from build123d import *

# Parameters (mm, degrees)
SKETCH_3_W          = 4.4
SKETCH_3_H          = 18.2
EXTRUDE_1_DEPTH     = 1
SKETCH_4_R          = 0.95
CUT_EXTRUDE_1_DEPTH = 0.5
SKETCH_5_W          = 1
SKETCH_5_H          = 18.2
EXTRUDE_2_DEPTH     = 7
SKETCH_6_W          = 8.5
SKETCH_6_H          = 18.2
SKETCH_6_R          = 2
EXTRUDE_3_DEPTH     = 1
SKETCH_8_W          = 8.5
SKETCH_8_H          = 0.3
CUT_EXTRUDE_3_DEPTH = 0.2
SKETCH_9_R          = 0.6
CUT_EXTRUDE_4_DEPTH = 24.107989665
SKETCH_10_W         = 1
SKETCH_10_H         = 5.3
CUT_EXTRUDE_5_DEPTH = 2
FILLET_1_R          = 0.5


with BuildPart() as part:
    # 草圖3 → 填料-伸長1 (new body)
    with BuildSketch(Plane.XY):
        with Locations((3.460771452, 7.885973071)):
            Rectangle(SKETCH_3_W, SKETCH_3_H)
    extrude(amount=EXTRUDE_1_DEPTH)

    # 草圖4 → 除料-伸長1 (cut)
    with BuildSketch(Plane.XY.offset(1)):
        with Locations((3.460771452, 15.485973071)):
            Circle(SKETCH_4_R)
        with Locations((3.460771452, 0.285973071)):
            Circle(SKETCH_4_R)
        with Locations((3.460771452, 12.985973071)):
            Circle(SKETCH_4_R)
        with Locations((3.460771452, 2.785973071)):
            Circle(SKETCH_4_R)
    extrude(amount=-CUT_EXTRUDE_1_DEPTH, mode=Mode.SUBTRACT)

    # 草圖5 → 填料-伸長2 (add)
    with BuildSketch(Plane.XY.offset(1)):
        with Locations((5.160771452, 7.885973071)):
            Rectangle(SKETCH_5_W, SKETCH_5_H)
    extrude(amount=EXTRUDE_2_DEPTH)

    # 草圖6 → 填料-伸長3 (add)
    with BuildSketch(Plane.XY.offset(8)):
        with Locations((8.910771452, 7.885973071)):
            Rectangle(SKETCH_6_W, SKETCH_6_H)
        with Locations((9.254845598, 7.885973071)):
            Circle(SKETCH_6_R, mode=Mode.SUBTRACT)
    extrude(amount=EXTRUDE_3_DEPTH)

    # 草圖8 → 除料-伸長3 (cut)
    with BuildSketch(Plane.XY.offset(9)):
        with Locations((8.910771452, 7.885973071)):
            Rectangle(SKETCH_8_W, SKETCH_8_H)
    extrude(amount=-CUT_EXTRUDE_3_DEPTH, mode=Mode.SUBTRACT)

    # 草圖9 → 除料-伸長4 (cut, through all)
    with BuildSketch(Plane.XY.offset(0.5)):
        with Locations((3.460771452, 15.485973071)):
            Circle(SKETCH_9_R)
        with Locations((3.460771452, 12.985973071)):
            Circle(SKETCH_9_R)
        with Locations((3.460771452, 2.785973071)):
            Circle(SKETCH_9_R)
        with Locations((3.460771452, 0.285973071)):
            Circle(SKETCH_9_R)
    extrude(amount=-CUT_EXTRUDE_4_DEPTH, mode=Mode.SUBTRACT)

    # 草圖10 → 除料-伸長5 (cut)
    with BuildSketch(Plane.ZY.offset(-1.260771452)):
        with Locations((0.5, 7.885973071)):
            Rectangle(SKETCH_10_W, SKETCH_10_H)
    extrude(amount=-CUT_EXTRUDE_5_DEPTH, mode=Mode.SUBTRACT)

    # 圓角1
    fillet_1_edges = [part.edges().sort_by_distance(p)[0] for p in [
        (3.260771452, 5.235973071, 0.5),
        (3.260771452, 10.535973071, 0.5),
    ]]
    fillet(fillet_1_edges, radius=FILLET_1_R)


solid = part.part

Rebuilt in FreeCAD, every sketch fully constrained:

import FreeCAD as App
import Part
import Sketcher
from FreeCAD import Vector
Q = App.Units.Quantity


def edges_at(feature, points):
    """Names of the edges that pass closest to the given points."""
    edges = feature.Shape.Edges
    near = lambda p: min(range(len(edges)), key=lambda i: edges[i].distToShape(Part.Vertex(*p))[0])
    return sorted({f"Edge{near(p) + 1}" for p in points})


def add_polygon(sketch, points):
    """Adds a closed chain of lines whose ends are joined by coincident constraints."""
    first, n = sketch.GeometryCount, len(points)
    for a, b in zip(points, points[1:] + points[:1]):
        sketch.addGeometry(Part.LineSegment(App.Vector(*a, 0), App.Vector(*b, 0)), False)
    for i in range(n):
        sketch.addConstraint(Sketcher.Constraint("Coincident", first + i, 2, first + (i + 1) % n, 1))

doc = App.newDocument("Part")
body = doc.addObject("PartDesign::Body", "Body")

sketch1 = body.newObject("Sketcher::SketchObject", "Sketch")
sketch1.AttachmentSupport = (doc.getObject("XY_Plane"), [""])
sketch1.MapMode = "FlatFace"
add_polygon(sketch1, [(1.3, 17), (1.3, -1.2), (5.7, -1.2), (5.7, 17)])
sketch1.addConstraint([
    Sketcher.Constraint("Vertical", 0),
    Sketcher.Constraint("Horizontal", 1),
    Sketcher.Constraint("Vertical", 2),
    Sketcher.Constraint("Horizontal", 3),
    Sketcher.Constraint("DistanceX", 1, 1, 1, 2, Q("4.4 mm")),
    Sketcher.Constraint("DistanceY", 0, 2, 0, 1, Q("18.2 mm")),
    Sketcher.Constraint("DistanceX", -1, 1, 0, 2, Q("1.260771 mm")),
    Sketcher.Constraint("DistanceY", 0, 2, -1, 1, Q("1.214027 mm")),
])
pad1 = body.newObject("PartDesign::Pad", "Pad")
pad1.Profile = sketch1
pad1.Length = 1

sketch2 = body.newObject("Sketcher::SketchObject", "Sketch001")
sketch2.AttachmentSupport = (doc.getObject("XY_Plane"), [""])
sketch2.MapMode = "FlatFace"
sketch2.AttachmentOffset = App.Placement(Vector(0, 0, 1), App.Rotation())
sketch2.addGeometry([
    Part.Circle(Vector(3.5, 15.5, 0), Vector(0, 0, 1), 0.9),
    Part.Circle(Vector(3.5, 0.3, 0), Vector(0, 0, 1), 0.9),
    Part.Circle(Vector(3.5, 13, 0), Vector(0, 0, 1), 0.9),
    Part.Circle(Vector(3.5, 2.8, 0), Vector(0, 0, 1), 0.9),
], False)
sketch2.addConstraint([
    Sketcher.Constraint("Equal", 0, 1),
    Sketcher.Constraint("Equal", 1, 2),
    Sketcher.Constraint("Equal", 2, 3),
    Sketcher.Constraint("Vertical", 0, 3, 1, 3),
    Sketcher.Constraint("Vertical", 1, 3, 2, 3),
    Sketcher.Constraint("Vertical", 2, 3, 3, 3),
    Sketcher.Constraint("Diameter", 0, Q("1.9 mm")),
    Sketcher.Constraint("DistanceY", 1, 3, 0, 3, Q("15.2 mm")),
    Sketcher.Constraint("DistanceY", 2, 3, 0, 3, Q("2.5 mm")),
    Sketcher.Constraint("DistanceY", 1, 3, 3, 3, Q("2.5 mm")),
    Sketcher.Constraint("DistanceX", -1, 1, 0, 3, Q("3.460771 mm")),
    Sketcher.Constraint("DistanceY", -1, 1, 0, 3, Q("15.485973 mm")),
])
pocket1 = body.newObject("PartDesign::Pocket", "Pocket")
pocket1.Profile = sketch2
pocket1.Length = 0.5

sketch3 = body.newObject("Sketcher::SketchObject", "Sketch002")
sketch3.AttachmentSupport = (doc.getObject("XY_Plane"), [""])
sketch3.MapMode = "FlatFace"
sketch3.AttachmentOffset = App.Placement(Vector(0, 0, 1), App.Rotation())
add_polygon(sketch3, [(4.7, 17), (4.7, -1.2), (5.7, -1.2), (5.7, 17)])
sketch3.addConstraint([
    Sketcher.Constraint("Vertical", 0),
    Sketcher.Constraint("Horizontal", 1),
    Sketcher.Constraint("Vertical", 2),
    Sketcher.Constraint("Horizontal", 3),
    Sketcher.Constraint("DistanceX", 1, 1, 1, 2, Q("1 mm")),
    Sketcher.Constraint("DistanceY", 0, 2, 0, 1, Q("18.2 mm")),
    Sketcher.Constraint("DistanceX", -1, 1, 0, 2, Q("4.660771 mm")),
    Sketcher.Constraint("DistanceY", 0, 2, -1, 1, Q("1.214027 mm")),
])
pad2 = body.newObject("PartDesign::Pad", "Pad001")
pad2.Profile = sketch3
pad2.Length = 7

sketch4 = body.newObject("Sketcher::SketchObject", "Sketch003")
sketch4.AttachmentSupport = (doc.getObject("XY_Plane"), [""])
sketch4.MapMode = "FlatFace"
sketch4.AttachmentOffset = App.Placement(Vector(0, 0, 8), App.Rotation())
add_polygon(sketch4, [(4.7, 17), (4.7, -1.2), (13.2, -1.2), (13.2, 17)])
sketch4.addGeometry(Part.Circle(Vector(9.3, 7.9, 0), Vector(0, 0, 1), 2), False)
sketch4.addConstraint([
    Sketcher.Constraint("Vertical", 0),
    Sketcher.Constraint("Horizontal", 1),
    Sketcher.Constraint("Vertical", 2),
    Sketcher.Constraint("Horizontal", 3),
    Sketcher.Constraint("Diameter", 4, Q("4 mm")),
    Sketcher.Constraint("DistanceX", 1, 1, 1, 2, Q("8.5 mm")),
    Sketcher.Constraint("DistanceY", 0, 2, 0, 1, Q("18.2 mm")),
    Sketcher.Constraint("DistanceY", 0, 2, 4, 3, Q("9.1 mm")),
    Sketcher.Constraint("DistanceX", -1, 1, 0, 2, Q("4.660771 mm")),
    Sketcher.Constraint("DistanceX", -1, 1, 4, 3, Q("9.254846 mm")),
    Sketcher.Constraint("DistanceY", -1, 1, 4, 3, Q("7.885973 mm")),
])
pad3 = body.newObject("PartDesign::Pad", "Pad002")
pad3.Profile = sketch4
pad3.Length = 1

sketch5 = body.newObject("Sketcher::SketchObject", "Sketch004")
sketch5.AttachmentSupport = (doc.getObject("XY_Plane"), [""])
sketch5.MapMode = "FlatFace"
sketch5.AttachmentOffset = App.Placement(Vector(0, 0, 9), App.Rotation())
add_polygon(sketch5, [(4.66, 8.04), (4.66, 7.74), (13.16, 7.74), (13.16, 8.04)])
sketch5.addConstraint([
    Sketcher.Constraint("Vertical", 0),
    Sketcher.Constraint("Horizontal", 1),
    Sketcher.Constraint("Vertical", 2),
    Sketcher.Constraint("Horizontal", 3),
    Sketcher.Constraint("DistanceX", 1, 1, 1, 2, Q("8.5 mm")),
    Sketcher.Constraint("DistanceY", 0, 2, 0, 1, Q("0.3 mm")),
    Sketcher.Constraint("DistanceX", -1, 1, 0, 2, Q("4.660771 mm")),
    Sketcher.Constraint("DistanceY", -1, 1, 0, 2, Q("7.735973 mm")),
])
pocket2 = body.newObject("PartDesign::Pocket", "Pocket001")
pocket2.Profile = sketch5
pocket2.Length = 0.2

sketch6 = body.newObject("Sketcher::SketchObject", "Sketch005")
sketch6.AttachmentSupport = (doc.getObject("XY_Plane"), [""])
sketch6.MapMode = "FlatFace"
sketch6.AttachmentOffset = App.Placement(Vector(0, 0, 0.5), App.Rotation())
sketch6.addGeometry([
    Part.Circle(Vector(3.5, 15.5, 0), Vector(0, 0, 1), 0.6),
    Part.Circle(Vector(3.5, 13, 0), Vector(0, 0, 1), 0.6),
    Part.Circle(Vector(3.5, 2.8, 0), Vector(0, 0, 1), 0.6),
    Part.Circle(Vector(3.5, 0.3, 0), Vector(0, 0, 1), 0.6),
], False)
sketch6.addConstraint([
    Sketcher.Constraint("Equal", 0, 1),
    Sketcher.Constraint("Equal", 1, 2),
    Sketcher.Constraint("Equal", 2, 3),
    Sketcher.Constraint("Vertical", 0, 3, 1, 3),
    Sketcher.Constraint("Vertical", 1, 3, 2, 3),
    Sketcher.Constraint("Vertical", 2, 3, 3, 3),
    Sketcher.Constraint("Diameter", 0, Q("1.2 mm")),
    Sketcher.Constraint("DistanceY", 1, 3, 0, 3, Q("2.5 mm")),
    Sketcher.Constraint("DistanceY", 2, 3, 1, 3, Q("10.2 mm")),
    Sketcher.Constraint("DistanceY", 3, 3, 2, 3, Q("2.5 mm")),
    Sketcher.Constraint("DistanceX", -1, 1, 0, 3, Q("3.460771 mm")),
    Sketcher.Constraint("DistanceY", -1, 1, 0, 3, Q("15.485973 mm")),
])
pocket3 = body.newObject("PartDesign::Pocket", "Pocket002")
pocket3.Profile = sketch6
pocket3.Type = "ThroughAll"

sketch7 = body.newObject("Sketcher::SketchObject", "Sketch006")
sketch7.AttachmentSupport = (doc.getObject("YZ_Plane"), [""])
sketch7.MapMode = "FlatFace"
sketch7.AttachmentOffset = App.Placement(Vector(0, 0, 1.260771), App.Rotation())
add_polygon(sketch7, [(10.5, 0), (5.2, 0), (5.2, 1), (10.5, 1)])
sketch7.addConstraint([
    Sketcher.Constraint("Horizontal", 0),
    Sketcher.Constraint("Vertical", 1),
    Sketcher.Constraint("Horizontal", 2),
    Sketcher.Constraint("Vertical", 3),
    Sketcher.Constraint("PointOnObject", 0, 2, -1),
    Sketcher.Constraint("DistanceY", 1, 1, 1, 2, Q("1 mm")),
    Sketcher.Constraint("DistanceX", 0, 2, 0, 1, Q("5.3 mm")),
    Sketcher.Constraint("DistanceX", -1, 1, 0, 2, Q("5.235973 mm")),
])
pocket4 = body.newObject("PartDesign::Pocket", "Pocket003")
pocket4.Profile = sketch7
pocket4.Length = 2
pocket4.Reversed = True
doc.recompute()

fillet = body.newObject("PartDesign::Fillet", "Fillet")
fillet.Base = (pocket4, edges_at(pocket4, [(3.261, 5.236, 0.5), (3.261, 10.536, 0.5)]))
fillet.Radius = 0.5

doc.recompute()
